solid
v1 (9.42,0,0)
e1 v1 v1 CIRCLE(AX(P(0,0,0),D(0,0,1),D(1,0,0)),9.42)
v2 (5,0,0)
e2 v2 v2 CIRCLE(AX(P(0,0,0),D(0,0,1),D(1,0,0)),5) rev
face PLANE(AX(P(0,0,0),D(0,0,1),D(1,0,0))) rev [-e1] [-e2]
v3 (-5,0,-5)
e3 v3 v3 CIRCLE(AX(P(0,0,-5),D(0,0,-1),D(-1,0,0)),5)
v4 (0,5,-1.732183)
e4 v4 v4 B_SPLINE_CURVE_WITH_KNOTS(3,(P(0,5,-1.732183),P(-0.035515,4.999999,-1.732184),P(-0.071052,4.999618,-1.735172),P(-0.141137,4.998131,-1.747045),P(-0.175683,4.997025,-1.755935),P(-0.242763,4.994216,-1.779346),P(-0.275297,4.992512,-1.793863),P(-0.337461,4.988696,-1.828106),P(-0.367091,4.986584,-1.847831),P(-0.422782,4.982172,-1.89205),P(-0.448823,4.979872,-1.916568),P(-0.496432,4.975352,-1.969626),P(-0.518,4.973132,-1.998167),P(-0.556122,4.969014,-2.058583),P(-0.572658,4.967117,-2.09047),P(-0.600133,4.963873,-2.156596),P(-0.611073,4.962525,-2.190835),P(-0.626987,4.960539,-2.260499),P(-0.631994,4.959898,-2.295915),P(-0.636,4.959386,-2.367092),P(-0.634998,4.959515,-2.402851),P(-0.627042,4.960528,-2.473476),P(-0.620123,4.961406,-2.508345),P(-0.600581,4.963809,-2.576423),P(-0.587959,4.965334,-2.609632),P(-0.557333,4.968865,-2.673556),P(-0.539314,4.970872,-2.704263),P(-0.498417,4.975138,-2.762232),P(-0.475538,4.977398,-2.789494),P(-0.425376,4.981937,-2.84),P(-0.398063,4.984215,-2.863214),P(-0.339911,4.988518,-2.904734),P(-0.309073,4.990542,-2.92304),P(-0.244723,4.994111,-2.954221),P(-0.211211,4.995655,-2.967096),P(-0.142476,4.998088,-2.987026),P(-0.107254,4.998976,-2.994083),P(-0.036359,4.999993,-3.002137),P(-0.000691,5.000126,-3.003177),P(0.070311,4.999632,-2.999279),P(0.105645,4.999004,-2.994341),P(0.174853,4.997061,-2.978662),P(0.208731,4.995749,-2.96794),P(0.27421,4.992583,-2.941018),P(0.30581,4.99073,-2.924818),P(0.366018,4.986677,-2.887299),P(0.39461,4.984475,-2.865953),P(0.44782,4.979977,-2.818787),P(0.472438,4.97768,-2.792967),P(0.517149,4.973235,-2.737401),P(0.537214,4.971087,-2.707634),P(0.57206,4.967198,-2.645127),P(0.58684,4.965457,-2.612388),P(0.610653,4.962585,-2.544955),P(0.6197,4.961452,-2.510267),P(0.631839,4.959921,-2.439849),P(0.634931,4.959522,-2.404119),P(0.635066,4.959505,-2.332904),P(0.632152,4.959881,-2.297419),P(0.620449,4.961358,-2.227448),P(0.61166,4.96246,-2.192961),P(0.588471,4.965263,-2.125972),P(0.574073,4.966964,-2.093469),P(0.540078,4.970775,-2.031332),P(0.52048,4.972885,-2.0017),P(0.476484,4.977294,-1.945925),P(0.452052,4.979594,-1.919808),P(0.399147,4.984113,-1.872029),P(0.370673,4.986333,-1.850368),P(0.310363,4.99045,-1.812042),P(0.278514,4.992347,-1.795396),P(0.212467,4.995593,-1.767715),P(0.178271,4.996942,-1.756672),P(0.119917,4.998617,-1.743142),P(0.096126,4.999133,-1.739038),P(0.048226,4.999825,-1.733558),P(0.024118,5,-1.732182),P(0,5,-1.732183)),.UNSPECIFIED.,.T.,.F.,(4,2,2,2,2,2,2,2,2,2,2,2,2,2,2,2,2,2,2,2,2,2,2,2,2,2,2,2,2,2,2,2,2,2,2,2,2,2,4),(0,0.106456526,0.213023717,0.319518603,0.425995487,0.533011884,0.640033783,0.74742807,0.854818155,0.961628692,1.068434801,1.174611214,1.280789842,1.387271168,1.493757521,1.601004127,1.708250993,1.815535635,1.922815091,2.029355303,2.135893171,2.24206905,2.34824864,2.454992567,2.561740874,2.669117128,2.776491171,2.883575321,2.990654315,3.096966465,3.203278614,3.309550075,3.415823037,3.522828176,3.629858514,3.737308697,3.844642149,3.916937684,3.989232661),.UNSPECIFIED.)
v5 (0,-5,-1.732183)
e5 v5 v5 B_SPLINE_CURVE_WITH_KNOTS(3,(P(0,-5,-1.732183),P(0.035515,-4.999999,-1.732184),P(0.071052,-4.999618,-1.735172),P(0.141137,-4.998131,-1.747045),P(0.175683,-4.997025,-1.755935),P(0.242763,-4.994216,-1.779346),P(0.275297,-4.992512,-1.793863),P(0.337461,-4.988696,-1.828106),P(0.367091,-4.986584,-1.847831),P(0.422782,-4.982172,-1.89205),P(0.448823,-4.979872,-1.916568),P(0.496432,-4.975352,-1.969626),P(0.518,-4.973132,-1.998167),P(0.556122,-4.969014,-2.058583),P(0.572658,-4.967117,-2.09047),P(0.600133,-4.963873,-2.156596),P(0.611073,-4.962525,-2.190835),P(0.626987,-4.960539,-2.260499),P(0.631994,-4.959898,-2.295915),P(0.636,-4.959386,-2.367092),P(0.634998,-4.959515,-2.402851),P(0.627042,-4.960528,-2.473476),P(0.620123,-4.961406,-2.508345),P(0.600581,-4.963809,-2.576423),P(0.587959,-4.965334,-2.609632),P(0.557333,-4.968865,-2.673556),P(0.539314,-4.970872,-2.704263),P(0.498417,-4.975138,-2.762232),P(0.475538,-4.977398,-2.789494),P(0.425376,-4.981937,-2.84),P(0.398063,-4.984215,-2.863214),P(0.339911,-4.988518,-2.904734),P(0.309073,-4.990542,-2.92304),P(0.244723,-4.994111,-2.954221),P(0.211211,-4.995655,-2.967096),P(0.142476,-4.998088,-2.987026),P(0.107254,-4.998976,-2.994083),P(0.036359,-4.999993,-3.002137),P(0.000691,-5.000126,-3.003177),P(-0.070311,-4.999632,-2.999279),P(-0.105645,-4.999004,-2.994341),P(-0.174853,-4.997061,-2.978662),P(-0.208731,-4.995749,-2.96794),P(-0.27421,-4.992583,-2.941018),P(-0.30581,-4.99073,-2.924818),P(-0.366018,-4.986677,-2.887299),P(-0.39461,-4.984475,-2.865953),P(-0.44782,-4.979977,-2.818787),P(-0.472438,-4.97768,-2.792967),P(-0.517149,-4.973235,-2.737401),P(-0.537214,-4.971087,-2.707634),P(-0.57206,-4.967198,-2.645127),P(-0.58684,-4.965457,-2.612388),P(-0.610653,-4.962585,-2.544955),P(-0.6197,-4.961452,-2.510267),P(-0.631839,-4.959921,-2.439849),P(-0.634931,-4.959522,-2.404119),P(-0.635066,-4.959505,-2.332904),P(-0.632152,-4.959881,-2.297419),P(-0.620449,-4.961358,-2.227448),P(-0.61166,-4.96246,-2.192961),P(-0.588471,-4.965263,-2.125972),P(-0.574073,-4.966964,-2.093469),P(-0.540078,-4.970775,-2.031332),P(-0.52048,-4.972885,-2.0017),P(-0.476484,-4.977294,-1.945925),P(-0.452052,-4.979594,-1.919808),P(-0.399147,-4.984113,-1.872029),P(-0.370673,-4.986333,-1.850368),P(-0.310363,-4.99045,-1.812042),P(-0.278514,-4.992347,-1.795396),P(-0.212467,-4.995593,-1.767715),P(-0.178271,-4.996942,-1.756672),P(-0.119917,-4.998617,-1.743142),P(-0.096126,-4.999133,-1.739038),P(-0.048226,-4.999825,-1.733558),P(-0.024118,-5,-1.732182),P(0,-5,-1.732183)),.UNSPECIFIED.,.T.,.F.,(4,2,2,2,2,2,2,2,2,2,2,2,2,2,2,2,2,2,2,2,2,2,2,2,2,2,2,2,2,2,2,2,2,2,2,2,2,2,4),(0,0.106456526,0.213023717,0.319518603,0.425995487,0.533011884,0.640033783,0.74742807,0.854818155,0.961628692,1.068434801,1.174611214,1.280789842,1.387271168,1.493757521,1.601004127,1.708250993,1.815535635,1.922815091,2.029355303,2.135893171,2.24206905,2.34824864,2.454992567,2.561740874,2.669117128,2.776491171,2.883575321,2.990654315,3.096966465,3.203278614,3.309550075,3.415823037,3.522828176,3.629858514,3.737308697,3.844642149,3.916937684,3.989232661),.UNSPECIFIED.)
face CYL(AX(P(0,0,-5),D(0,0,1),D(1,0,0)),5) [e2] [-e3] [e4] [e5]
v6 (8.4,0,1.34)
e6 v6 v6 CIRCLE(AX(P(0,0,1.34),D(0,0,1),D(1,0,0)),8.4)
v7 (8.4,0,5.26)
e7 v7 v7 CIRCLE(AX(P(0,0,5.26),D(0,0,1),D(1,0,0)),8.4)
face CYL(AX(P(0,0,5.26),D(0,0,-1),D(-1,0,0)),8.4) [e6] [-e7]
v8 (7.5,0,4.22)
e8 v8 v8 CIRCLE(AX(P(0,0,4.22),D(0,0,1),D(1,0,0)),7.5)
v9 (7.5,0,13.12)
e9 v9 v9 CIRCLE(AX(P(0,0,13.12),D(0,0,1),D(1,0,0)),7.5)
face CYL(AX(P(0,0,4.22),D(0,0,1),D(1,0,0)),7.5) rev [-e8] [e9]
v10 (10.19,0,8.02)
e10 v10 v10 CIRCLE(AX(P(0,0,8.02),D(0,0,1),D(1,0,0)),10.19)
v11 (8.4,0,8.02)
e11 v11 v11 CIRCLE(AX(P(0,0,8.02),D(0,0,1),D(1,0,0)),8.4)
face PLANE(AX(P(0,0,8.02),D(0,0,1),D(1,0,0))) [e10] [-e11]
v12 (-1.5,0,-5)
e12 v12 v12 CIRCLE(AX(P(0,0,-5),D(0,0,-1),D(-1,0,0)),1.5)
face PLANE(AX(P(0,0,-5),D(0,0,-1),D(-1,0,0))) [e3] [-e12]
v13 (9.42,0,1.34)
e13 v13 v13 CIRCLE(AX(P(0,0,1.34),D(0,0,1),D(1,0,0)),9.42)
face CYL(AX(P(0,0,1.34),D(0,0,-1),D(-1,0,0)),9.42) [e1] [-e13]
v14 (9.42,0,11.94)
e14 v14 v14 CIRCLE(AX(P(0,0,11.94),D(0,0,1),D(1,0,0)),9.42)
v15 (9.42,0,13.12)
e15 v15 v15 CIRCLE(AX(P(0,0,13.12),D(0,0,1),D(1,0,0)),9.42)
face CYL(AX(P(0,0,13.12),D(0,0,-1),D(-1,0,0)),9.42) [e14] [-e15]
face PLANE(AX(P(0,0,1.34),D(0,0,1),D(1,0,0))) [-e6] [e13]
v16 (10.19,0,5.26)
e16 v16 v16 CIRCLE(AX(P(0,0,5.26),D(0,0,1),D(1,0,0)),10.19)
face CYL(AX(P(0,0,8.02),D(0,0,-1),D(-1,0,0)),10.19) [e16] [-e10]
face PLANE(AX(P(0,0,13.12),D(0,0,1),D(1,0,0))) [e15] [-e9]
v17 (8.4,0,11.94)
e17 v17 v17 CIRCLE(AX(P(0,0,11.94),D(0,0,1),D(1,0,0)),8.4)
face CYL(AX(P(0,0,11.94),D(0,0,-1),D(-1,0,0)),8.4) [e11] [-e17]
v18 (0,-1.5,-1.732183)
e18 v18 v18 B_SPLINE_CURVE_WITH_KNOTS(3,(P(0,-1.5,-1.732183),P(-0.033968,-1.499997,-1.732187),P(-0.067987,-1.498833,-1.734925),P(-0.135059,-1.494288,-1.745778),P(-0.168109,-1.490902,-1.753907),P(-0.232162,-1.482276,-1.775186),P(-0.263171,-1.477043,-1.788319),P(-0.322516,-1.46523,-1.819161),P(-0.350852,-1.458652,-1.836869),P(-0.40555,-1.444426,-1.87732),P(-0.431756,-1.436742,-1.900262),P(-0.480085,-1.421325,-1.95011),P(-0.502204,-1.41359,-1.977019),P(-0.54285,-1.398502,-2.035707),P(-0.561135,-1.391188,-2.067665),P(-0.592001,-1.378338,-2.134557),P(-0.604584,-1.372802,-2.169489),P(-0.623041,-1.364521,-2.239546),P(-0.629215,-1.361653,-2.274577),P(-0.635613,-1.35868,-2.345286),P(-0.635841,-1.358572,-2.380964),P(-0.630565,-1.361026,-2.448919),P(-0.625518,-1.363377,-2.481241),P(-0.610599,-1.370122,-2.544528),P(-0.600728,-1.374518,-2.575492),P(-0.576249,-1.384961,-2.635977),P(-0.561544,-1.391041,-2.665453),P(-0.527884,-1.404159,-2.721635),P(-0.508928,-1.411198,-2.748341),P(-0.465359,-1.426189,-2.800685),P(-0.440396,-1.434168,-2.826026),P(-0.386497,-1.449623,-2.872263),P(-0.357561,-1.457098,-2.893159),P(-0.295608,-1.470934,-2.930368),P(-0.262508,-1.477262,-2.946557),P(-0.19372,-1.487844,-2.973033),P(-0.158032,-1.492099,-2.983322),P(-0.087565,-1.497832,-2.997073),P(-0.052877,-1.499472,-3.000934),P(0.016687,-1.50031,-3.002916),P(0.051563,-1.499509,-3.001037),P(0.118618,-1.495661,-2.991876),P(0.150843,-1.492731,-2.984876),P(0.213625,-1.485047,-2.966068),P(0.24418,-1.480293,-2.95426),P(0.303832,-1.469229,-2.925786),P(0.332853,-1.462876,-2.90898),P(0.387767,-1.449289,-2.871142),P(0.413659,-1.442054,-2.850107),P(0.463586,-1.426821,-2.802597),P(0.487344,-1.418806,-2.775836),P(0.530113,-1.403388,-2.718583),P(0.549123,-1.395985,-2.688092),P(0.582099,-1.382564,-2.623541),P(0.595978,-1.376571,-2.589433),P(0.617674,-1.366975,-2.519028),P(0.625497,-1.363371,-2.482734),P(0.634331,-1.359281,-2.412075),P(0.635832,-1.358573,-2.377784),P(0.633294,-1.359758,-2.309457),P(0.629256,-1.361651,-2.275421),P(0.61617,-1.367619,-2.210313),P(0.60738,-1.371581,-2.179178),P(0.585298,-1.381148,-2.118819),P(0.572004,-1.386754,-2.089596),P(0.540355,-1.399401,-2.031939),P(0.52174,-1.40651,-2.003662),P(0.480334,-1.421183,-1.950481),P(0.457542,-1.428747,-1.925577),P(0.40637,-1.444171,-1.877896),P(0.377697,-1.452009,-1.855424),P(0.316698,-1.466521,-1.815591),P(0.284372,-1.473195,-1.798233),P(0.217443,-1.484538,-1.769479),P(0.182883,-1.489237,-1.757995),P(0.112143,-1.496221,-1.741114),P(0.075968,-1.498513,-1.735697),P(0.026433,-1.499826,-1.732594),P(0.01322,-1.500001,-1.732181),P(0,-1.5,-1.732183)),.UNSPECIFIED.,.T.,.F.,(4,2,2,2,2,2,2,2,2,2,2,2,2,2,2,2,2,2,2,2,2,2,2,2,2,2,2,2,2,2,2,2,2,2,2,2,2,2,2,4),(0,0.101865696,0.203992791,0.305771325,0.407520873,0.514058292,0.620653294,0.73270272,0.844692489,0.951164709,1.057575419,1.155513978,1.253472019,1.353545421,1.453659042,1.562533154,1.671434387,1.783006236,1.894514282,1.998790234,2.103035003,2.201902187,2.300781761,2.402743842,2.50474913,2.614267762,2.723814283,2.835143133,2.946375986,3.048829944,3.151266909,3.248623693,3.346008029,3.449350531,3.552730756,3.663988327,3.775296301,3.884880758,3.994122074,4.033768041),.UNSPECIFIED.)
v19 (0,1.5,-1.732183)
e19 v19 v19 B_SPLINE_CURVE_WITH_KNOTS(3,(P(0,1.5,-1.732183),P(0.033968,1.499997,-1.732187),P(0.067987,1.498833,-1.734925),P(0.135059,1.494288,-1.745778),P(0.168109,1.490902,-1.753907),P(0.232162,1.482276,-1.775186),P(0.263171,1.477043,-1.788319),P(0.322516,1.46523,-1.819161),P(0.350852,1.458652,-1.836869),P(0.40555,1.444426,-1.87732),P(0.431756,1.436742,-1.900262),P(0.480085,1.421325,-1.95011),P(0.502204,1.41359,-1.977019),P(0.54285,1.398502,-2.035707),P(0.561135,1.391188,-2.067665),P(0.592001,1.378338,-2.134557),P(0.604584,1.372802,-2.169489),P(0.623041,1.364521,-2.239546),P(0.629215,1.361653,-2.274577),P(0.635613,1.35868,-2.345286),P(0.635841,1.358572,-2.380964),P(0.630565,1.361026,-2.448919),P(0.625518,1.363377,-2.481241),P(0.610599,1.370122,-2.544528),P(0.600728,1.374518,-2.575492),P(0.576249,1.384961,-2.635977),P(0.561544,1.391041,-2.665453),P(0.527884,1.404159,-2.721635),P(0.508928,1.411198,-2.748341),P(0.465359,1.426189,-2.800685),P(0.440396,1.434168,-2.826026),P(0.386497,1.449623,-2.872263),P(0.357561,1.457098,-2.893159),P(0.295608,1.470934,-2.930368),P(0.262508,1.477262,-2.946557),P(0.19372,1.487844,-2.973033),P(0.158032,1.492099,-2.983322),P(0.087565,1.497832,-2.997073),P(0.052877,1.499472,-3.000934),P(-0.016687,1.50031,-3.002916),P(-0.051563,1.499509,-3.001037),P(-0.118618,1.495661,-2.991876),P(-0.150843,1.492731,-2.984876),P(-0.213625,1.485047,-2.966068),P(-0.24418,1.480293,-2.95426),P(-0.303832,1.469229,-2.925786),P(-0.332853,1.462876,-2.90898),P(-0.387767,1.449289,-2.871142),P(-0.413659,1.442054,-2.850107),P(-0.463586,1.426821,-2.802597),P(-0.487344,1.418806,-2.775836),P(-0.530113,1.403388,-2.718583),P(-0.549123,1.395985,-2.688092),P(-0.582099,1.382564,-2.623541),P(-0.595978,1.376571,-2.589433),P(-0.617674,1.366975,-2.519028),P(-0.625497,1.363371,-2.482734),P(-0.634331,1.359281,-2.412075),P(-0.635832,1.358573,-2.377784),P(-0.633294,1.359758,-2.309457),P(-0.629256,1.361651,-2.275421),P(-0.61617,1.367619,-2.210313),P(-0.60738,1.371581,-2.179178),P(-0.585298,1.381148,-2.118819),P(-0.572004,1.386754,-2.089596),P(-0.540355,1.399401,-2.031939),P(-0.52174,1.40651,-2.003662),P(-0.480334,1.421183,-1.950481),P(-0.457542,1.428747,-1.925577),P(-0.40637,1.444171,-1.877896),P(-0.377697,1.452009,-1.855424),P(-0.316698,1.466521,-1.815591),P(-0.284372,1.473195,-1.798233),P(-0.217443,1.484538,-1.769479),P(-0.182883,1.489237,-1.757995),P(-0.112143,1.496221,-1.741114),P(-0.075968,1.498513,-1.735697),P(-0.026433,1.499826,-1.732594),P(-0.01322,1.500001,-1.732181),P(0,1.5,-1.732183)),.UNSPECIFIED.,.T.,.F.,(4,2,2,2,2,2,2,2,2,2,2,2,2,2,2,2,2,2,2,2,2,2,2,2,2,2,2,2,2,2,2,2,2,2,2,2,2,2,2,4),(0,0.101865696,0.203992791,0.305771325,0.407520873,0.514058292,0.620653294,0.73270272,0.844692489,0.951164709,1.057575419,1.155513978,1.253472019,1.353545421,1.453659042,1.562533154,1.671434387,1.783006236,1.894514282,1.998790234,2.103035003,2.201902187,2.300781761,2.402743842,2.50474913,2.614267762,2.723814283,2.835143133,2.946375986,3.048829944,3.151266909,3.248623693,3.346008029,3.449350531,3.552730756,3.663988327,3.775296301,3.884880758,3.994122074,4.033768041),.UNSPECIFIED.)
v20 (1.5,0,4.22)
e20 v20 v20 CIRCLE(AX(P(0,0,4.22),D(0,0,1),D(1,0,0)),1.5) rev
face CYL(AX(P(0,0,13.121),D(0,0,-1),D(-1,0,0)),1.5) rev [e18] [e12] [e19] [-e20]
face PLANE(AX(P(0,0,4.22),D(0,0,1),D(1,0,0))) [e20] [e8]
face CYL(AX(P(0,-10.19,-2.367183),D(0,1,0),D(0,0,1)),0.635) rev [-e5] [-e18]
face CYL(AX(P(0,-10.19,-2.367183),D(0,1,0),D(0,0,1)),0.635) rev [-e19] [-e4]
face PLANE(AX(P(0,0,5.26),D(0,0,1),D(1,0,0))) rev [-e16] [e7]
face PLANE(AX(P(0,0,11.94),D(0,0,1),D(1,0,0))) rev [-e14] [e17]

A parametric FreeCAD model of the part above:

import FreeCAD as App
import Part
import Sketcher

V = App.Vector
Q = App.Units.Quantity

doc = App.newDocument("Part")
body = doc.addObject("PartDesign::Body", "Body")

# Sketch on XY plane
sketch1 = body.newObject("Sketcher::SketchObject", "Sketch")
sketch1.AttachmentSupport = (doc.getObject("XY_Plane"), [""])
sketch1.MapMode = "FlatFace"
sketch1.addGeometry(Part.Circle(V(0, 0, 0), V(0, 0, 1), 9), False)
sketch1.addConstraint(Sketcher.Constraint("Coincident", 0, 3, -1, 1))
sketch1.addConstraint(Sketcher.Constraint("Diameter", 0, Q("18.84 mm")))
pad1 = body.newObject("PartDesign::Pad", "Pad")
pad1.Profile = sketch1
pad1.Length = 1.34

# Sketch on XY plane
sketch2 = body.newObject("Sketcher::SketchObject", "Sketch001")
sketch2.AttachmentSupport = (doc.getObject("XY_Plane"), [""])
sketch2.MapMode = "FlatFace"
sketch2.AttachmentOffset = App.Placement(V(0, 0, 1.34), App.Rotation())
sketch2.addGeometry(Part.Circle(V(0, 0, 0), V(0, 0, 1), 8), False)
sketch2.addConstraint(Sketcher.Constraint("Coincident", 0, 3, -1, 1))
sketch2.addConstraint(Sketcher.Constraint("Diameter", 0, Q("16.8 mm")))
pad2 = body.newObject("PartDesign::Pad", "Pad001")
pad2.Profile = sketch2
pad2.Length = 3.92

# Sketch on XY plane
sketch3 = body.newObject("Sketcher::SketchObject", "Sketch002")
sketch3.AttachmentSupport = (doc.getObject("XY_Plane"), [""])
sketch3.MapMode = "FlatFace"
sketch3.AttachmentOffset = App.Placement(V(0, 0, 5.26), App.Rotation())
sketch3.addGeometry(Part.Circle(V(0, 0, 0), V(0, 0, 1), 10), False)
sketch3.addConstraint(Sketcher.Constraint("Coincident", 0, 3, -1, 1))
sketch3.addConstraint(Sketcher.Constraint("Diameter", 0, Q("20.38 mm")))
pad3 = body.newObject("PartDesign::Pad", "Pad002")
pad3.Profile = sketch3
pad3.Length = 2.76

# Sketch on XY plane
sketch4 = body.newObject("Sketcher::SketchObject", "Sketch003")
sketch4.AttachmentSupport = (doc.getObject("XY_Plane"), [""])
sketch4.MapMode = "FlatFace"
sketch4.AttachmentOffset = App.Placement(V(0, 0, 8.02), App.Rotation())
sketch4.addGeometry(Part.Circle(V(0, 0, 0), V(0, 0, 1), 8), False)
sketch4.addConstraint(Sketcher.Constraint("Coincident", 0, 3, -1, 1))
sketch4.addConstraint(Sketcher.Constraint("Diameter", 0, Q("16.8 mm")))
pad4 = body.newObject("PartDesign::Pad", "Pad003")
pad4.Profile = sketch4
pad4.Length = 3.92

# Sketch on XY plane
sketch5 = body.newObject("Sketcher::SketchObject", "Sketch004")
sketch5.AttachmentSupport = (doc.getObject("XY_Plane"), [""])
sketch5.MapMode = "FlatFace"
sketch5.AttachmentOffset = App.Placement(V(0, 0, 11.94), App.Rotation())
sketch5.addGeometry(Part.Circle(V(0, 0, 0), V(0, 0, 1), 9), False)
sketch5.addConstraint(Sketcher.Constraint("Coincident", 0, 3, -1, 1))
sketch5.addConstraint(Sketcher.Constraint("Diameter", 0, Q("18.84 mm")))
pad5 = body.newObject("PartDesign::Pad", "Pad004")
pad5.Profile = sketch5
pad5.Length = 1.18

# Sketch on XY plane
sketch6 = body.newObject("Sketcher::SketchObject", "Sketch005")
sketch6.AttachmentSupport = (doc.getObject("XY_Plane"), [""])
sketch6.MapMode = "FlatFace"
sketch6.AttachmentOffset = App.Placement(V(0, 0, 13.12), App.Rotation())
sketch6.addGeometry(Part.Circle(V(0, 0, 0), V(0, 0, 1), 8), False)
sketch6.addConstraint(Sketcher.Constraint("Coincident", 0, 3, -1, 1))
sketch6.addConstraint(Sketcher.Constraint("Diameter", 0, Q("15 mm")))
pocket1 = body.newObject("PartDesign::Pocket", "Pocket")
pocket1.Profile = sketch6
pocket1.Length = 8.9

# Sketch on XY plane
sketch7 = body.newObject("Sketcher::SketchObject", "Sketch006")
sketch7.AttachmentSupport = (doc.getObject("XY_Plane"), [""])
sketch7.MapMode = "FlatFace"
sketch7.addGeometry(Part.Circle(V(0, 0, 0), V(0, 0, 1), 1.5), False)
sketch7.addConstraint(Sketcher.Constraint("Coincident", 0, 3, -1, 1))
sketch7.addConstraint(Sketcher.Constraint("Diameter", 0, Q("3 mm")))
pocket2 = body.newObject("PartDesign::Pocket", "Pocket001")
pocket2.Profile = sketch7
pocket2.Type = "UpToFirst"
pocket2.Reversed = True

# Sketch on XY plane
sketch8 = body.newObject("Sketcher::SketchObject", "Sketch007")
sketch8.AttachmentSupport = (doc.getObject("XY_Plane"), [""])
sketch8.MapMode = "FlatFace"
sketch8.addGeometry(Part.Circle(V(0, 0, 0), V(0, 0, 1), 5), False)
sketch8.addGeometry(Part.Circle(V(0, 0, 0), V(0, 0, 1), 1.5), False)
sketch8.addConstraint(Sketcher.Constraint("Coincident", 0, 3, -1, 1))
sketch8.addConstraint(Sketcher.Constraint("Coincident", 1, 3, -1, 1))
sketch8.addConstraint(Sketcher.Constraint("Diameter", 0, Q("10 mm")))
sketch8.addConstraint(Sketcher.Constraint("Diameter", 1, Q("3 mm")))
pad6 = body.newObject("PartDesign::Pad", "Pad005")
pad6.Profile = sketch8
pad6.Length = 5
pad6.Reversed = True

# Sketch on XZ plane
sketch9 = body.newObject("Sketcher::SketchObject", "Sketch008")
sketch9.AttachmentSupport = (doc.getObject("XZ_Plane"), [""])
sketch9.MapMode = "FlatFace"
sketch9.addGeometry(Part.Circle(V(0, -2.4, 0), V(0, 0, 1), 0.6), False)
sketch9.addConstraint(Sketcher.Constraint("PointOnObject", 0, 3, -2))
sketch9.addConstraint(Sketcher.Constraint("Diameter", 0, Q("1.27 mm")))
sketch9.addConstraint(Sketcher.Constraint("DistanceY", 0, 3, -1, 1, Q("2.367183 mm")))
pocket3 = body.newObject("PartDesign::Pocket", "Pocket002")
pocket3.Profile = sketch9
pocket3.Type = "ThroughAll"
pocket3.Midplane = True

doc.recompute()
